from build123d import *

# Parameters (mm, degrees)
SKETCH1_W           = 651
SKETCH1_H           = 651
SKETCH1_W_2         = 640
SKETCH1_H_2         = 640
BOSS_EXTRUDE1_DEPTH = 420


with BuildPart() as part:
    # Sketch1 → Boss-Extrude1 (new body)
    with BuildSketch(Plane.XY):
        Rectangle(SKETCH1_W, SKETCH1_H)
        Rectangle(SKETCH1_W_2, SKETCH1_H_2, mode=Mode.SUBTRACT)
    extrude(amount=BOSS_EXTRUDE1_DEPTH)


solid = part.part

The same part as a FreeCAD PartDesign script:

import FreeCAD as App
import Part
import Sketcher
from FreeCAD import Vector
Q = App.Units.Quantity


def add_polygon(sketch, points):
    """Adds a closed chain of lines whose ends are joined by coincident constraints."""
    first, n = sketch.GeometryCount, len(points)
    for a, b in zip(points, points[1:] + points[:1]):
        sketch.addGeometry(Part.LineSegment(App.Vector(*a, 0), App.Vector(*b, 0)), False)
    for i in range(n):
        sketch.addConstraint(Sketcher.Constraint("Coincident", first + i, 2, first + (i + 1) % n, 1))

doc = App.newDocument("Part")
body = doc.addObject("PartDesign::Body", "Body")

# Sketch on XY plane
sketch1 = body.newObject("Sketcher::SketchObject", "Sketch")
sketch1.AttachmentSupport = (doc.getObject("XY_Plane"), [""])
sketch1.MapMode = "FlatFace"
add_polygon(sketch1, [(-325.5, 325.5), (-325.5, -325.5), (325.5, -325.5), (325.5, 325.5)])  # lines 0-3
add_polygon(sketch1, [(320, -320), (-320, -320), (-320, 320), (320, 320)])  # lines 4-7
sketch1.addConstraint(Sketcher.Constraint("Vertical", 0))
sketch1.addConstraint(Sketcher.Constraint("Horizontal", 1))
sketch1.addConstraint(Sketcher.Constraint("Vertical", 2))
sketch1.addConstraint(Sketcher.Constraint("Horizontal", 3))
sketch1.addConstraint(Sketcher.Constraint("Horizontal", 4))
sketch1.addConstraint(Sketcher.Constraint("Vertical", 5))
sketch1.addConstraint(Sketcher.Constraint("Horizontal", 6))
sketch1.addConstraint(Sketcher.Constraint("Vertical", 7))
sketch1.addConstraint(Sketcher.Constraint("Symmetric", 0, 2, 2, 2, -1, 1))
sketch1.addConstraint(Sketcher.Constraint("Symmetric", 4, 2, 6, 2, -1, 1))
sketch1.addConstraint(Sketcher.Constraint("Equal", 3, 0))
sketch1.addConstraint(Sketcher.Constraint("Equal", 6, 5))
sketch1.addConstraint(Sketcher.Constraint("DistanceX", 1, 1, 1, 2, Q("651 mm")))
sketch1.addConstraint(Sketcher.Constraint("DistanceX", 4, 2, 4, 1, Q("640 mm")))
pad1 = body.newObject("PartDesign::Pad", "Pad")
pad1.Profile = sketch1
pad1.Length = 420

doc.recompute()
